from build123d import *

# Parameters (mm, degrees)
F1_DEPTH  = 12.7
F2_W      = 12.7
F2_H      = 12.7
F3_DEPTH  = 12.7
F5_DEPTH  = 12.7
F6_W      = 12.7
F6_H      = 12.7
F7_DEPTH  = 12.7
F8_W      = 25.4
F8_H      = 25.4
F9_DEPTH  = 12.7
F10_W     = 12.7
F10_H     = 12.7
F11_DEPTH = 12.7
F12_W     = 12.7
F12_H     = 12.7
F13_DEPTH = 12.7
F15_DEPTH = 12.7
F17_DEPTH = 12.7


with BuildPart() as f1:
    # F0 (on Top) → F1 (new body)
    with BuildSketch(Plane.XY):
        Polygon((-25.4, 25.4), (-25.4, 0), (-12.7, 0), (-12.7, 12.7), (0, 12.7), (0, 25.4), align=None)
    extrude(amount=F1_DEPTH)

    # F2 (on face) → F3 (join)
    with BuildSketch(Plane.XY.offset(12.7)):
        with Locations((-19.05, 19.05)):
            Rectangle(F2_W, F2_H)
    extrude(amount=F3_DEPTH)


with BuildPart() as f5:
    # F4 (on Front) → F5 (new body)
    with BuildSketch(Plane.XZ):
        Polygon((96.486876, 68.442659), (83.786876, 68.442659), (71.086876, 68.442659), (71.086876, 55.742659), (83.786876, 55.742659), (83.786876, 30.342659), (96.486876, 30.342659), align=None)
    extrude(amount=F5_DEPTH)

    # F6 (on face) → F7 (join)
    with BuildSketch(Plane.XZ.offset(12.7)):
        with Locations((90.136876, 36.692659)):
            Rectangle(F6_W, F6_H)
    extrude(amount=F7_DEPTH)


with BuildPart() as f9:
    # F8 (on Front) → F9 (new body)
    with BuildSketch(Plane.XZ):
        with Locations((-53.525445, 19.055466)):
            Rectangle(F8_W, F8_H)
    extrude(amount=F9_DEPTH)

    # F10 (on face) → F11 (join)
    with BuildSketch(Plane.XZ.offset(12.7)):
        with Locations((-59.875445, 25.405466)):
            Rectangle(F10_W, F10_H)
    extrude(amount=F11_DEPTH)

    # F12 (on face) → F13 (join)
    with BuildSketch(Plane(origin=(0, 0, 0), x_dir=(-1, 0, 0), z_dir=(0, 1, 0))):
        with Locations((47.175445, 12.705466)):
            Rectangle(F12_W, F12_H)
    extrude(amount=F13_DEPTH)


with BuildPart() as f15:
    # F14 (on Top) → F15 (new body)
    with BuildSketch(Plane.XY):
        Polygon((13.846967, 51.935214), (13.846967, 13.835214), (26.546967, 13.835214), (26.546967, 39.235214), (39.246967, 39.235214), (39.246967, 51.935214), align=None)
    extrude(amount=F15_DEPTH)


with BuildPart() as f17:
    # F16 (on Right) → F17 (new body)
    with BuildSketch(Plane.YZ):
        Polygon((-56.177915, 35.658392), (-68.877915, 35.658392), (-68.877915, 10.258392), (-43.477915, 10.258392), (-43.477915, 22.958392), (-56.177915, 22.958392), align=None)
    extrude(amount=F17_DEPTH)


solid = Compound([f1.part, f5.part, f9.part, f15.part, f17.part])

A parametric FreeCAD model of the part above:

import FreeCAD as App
import Part
import Sketcher
from FreeCAD import Vector
Q = App.Units.Quantity

doc = App.newDocument("Part")
body = doc.addObject("PartDesign::Body", "Body")

# Sketch on XY plane
sketch1 = body.newObject("Sketcher::SketchObject", "Sketch")
sketch1.AttachmentSupport = (doc.getObject("XY_Plane"), [""])
sketch1.MapMode = "FlatFace"
sketch1.addGeometry(Part.LineSegment(Vector(-25.4, 25.4, 0), Vector(-25.4, 0, 0)), False)
sketch1.addGeometry(Part.LineSegment(Vector(-25.4, 0, 0), Vector(-12.7, 0, 0)), False)
sketch1.addGeometry(Part.LineSegment(Vector(-12.7, 0, 0), Vector(-12.7, 12.7, 0)), False)
sketch1.addGeometry(Part.LineSegment(Vector(-12.7, 12.7, 0), Vector(0, 12.7, 0)), False)
sketch1.addGeometry(Part.LineSegment(Vector(0, 12.7, 0), Vector(0, 25.4, 0)), False)
sketch1.addGeometry(Part.LineSegment(Vector(0, 25.4, 0), Vector(-25.4, 25.4, 0)), False)
sketch1.addConstraint(Sketcher.Constraint("Coincident", 0, 2, 1, 1))
sketch1.addConstraint(Sketcher.Constraint("Coincident", 1, 2, 2, 1))
sketch1.addConstraint(Sketcher.Constraint("Coincident", 2, 2, 3, 1))
sketch1.addConstraint(Sketcher.Constraint("Coincident", 3, 2, 4, 1))
sketch1.addConstraint(Sketcher.Constraint("Coincident", 4, 2, 5, 1))
sketch1.addConstraint(Sketcher.Constraint("Coincident", 5, 2, 0, 1))
sketch1.addConstraint(Sketcher.Constraint("Vertical", 0))
sketch1.addConstraint(Sketcher.Constraint("Horizontal", 1))
sketch1.addConstraint(Sketcher.Constraint("Vertical", 2))
sketch1.addConstraint(Sketcher.Constraint("Horizontal", 3))
sketch1.addConstraint(Sketcher.Constraint("Vertical", 4))
sketch1.addConstraint(Sketcher.Constraint("Horizontal", 5))
sketch1.addConstraint(Sketcher.Constraint("PointOnObject", 0, 2, -1))
sketch1.addConstraint(Sketcher.Constraint("PointOnObject", 3, 2, -2))
sketch1.addConstraint(Sketcher.Constraint("Equal", 1, 3))
sketch1.addConstraint(Sketcher.Constraint("Equal", 5, 0))
sketch1.addConstraint(Sketcher.Constraint("Equal", 3, 2))
sketch1.addConstraint(Sketcher.Constraint("DistanceX", 5, 2, 5, 1, Q("1 in")))
pad1 = body.newObject("PartDesign::Pad", "Pad")
pad1.Profile = sketch1
pad1.Length = Q("0.5 in")

# Sketch on XY plane
sketch2 = body.newObject("Sketcher::SketchObject", "Sketch001")
sketch2.AttachmentSupport = (doc.getObject("XY_Plane"), [""])
sketch2.MapMode = "FlatFace"
sketch2.AttachmentOffset = App.Placement(Vector(0, 0, 0.5 * 25.4), App.Rotation())
sketch2.addGeometry(Part.LineSegment(Vector(-25.4, 25.4, 0), Vector(-25.4, 12.7, 0)), False)
sketch2.addGeometry(Part.LineSegment(Vector(-25.4, 12.7, 0), Vector(-12.7, 12.7, 0)), False)
sketch2.addGeometry(Part.LineSegment(Vector(-12.7, 12.7, 0), Vector(-12.7, 25.4, 0)), False)
sketch2.addGeometry(Part.LineSegment(Vector(-12.7, 25.4, 0), Vector(-25.4, 25.4, 0)), False)
sketch2.addConstraint(Sketcher.Constraint("Coincident", 0, 2, 1, 1))
sketch2.addConstraint(Sketcher.Constraint("Coincident", 1, 2, 2, 1))
sketch2.addConstraint(Sketcher.Constraint("Coincident", 2, 2, 3, 1))
sketch2.addConstraint(Sketcher.Constraint("Coincident", 3, 2, 0, 1))
sketch2.addConstraint(Sketcher.Constraint("Vertical", 0))
sketch2.addConstraint(Sketcher.Constraint("Horizontal", 1))
sketch2.addConstraint(Sketcher.Constraint("Vertical", 2))
sketch2.addConstraint(Sketcher.Constraint("Horizontal", 3))
sketch2.addConstraint(Sketcher.Constraint("Equal", 3, 0))
sketch2.addConstraint(Sketcher.Constraint("DistanceX", 1, 1, 1, 2, Q("0.5 in")))
sketch2.addConstraint(Sketcher.Constraint("DistanceX", 0, 2, -1, 1, Q("1 in")))
sketch2.addConstraint(Sketcher.Constraint("DistanceY", -1, 1, 2, 2, Q("1 in")))
pad2 = body.newObject("PartDesign::Pad", "Pad001")
pad2.Profile = sketch2
pad2.Length = Q("0.5 in")
body2 = doc.addObject("PartDesign::Body", "Body001")

# Sketch on XZ plane
sketch3 = body2.newObject("Sketcher::SketchObject", "Sketch002")
sketch3.AttachmentSupport = (doc.getObject("XZ_Plane001"), [""])
sketch3.MapMode = "FlatFace"
sketch3.addGeometry(Part.LineSegment(Vector(96.486876, 68.442659, 0), Vector(71.086876, 68.442659, 0)), False)
sketch3.addGeometry(Part.LineSegment(Vector(71.086876, 68.442659, 0), Vector(71.086876, 55.742659, 0)), False)
sketch3.addGeometry(Part.LineSegment(Vector(71.086876, 55.742659, 0), Vector(83.786876, 55.742659, 0)), False)
sketch3.addGeometry(Part.LineSegment(Vector(83.786876, 55.742659, 0), Vector(83.786876, 30.342659, 0)), False)
sketch3.addGeometry(Part.LineSegment(Vector(83.786876, 30.342659, 0), Vector(96.486876, 30.342659, 0)), False)
sketch3.addGeometry(Part.LineSegment(Vector(96.486876, 30.342659, 0), Vector(96.486876, 68.442659, 0)), False)
sketch3.addConstraint(Sketcher.Constraint("Coincident", 0, 2, 1, 1))
sketch3.addConstraint(Sketcher.Constraint("Coincident", 1, 2, 2, 1))
sketch3.addConstraint(Sketcher.Constraint("Coincident", 2, 2, 3, 1))
sketch3.addConstraint(Sketcher.Constraint("Coincident", 3, 2, 4, 1))
sketch3.addConstraint(Sketcher.Constraint("Coincident", 4, 2, 5, 1))
sketch3.addConstraint(Sketcher.Constraint("Coincident", 5, 2, 0, 1))
sketch3.addConstraint(Sketcher.Constraint("Horizontal", 0))
sketch3.addConstraint(Sketcher.Constraint("Vertical", 1))
sketch3.addConstraint(Sketcher.Constraint("Horizontal", 2))
sketch3.addConstraint(Sketcher.Constraint("Vertical", 3))
sketch3.addConstraint(Sketcher.Constraint("Horizontal", 4))
sketch3.addConstraint(Sketcher.Constraint("Vertical", 5))
sketch3.addConstraint(Sketcher.Constraint("Equal", 2, 4))
sketch3.addConstraint(Sketcher.Constraint("Equal", 4, 1))
sketch3.addConstraint(Sketcher.Constraint("Equal", 0, 3))
sketch3.addConstraint(Sketcher.Constraint("DistanceX", 0, 2, 0, 1, Q("1 in")))
sketch3.addConstraint(Sketcher.Constraint("DistanceY", -1, 1, 0, 2, 68.442659))
sketch3.addConstraint(Sketcher.Constraint("DistanceX", -1, 1, 0, 2, 71.086876))
pad3 = body2.newObject("PartDesign::Pad", "Pad002")
pad3.Profile = sketch3
pad3.Length = Q("0.5 in")

# Sketch on XZ plane
sketch4 = body2.newObject("Sketcher::SketchObject", "Sketch003")
sketch4.AttachmentSupport = (doc.getObject("XZ_Plane001"), [""])
sketch4.MapMode = "FlatFace"
sketch4.AttachmentOffset = App.Placement(Vector(0, 0, 0.5 * 25.4), App.Rotation())
sketch4.addGeometry(Part.LineSegment(Vector(83.786876, 43.042659, 0), Vector(83.786876, 30.342659, 0)), False)
sketch4.addGeometry(Part.LineSegment(Vector(83.786876, 30.342659, 0), Vector(96.486876, 30.342659, 0)), False)
sketch4.addGeometry(Part.LineSegment(Vector(96.486876, 30.342659, 0), Vector(96.486876, 43.042659, 0)), False)
sketch4.addGeometry(Part.LineSegment(Vector(96.486876, 43.042659, 0), Vector(83.786876, 43.042659, 0)), False)
sketch4.addConstraint(Sketcher.Constraint("Coincident", 0, 2, 1, 1))
sketch4.addConstraint(Sketcher.Constraint("Coincident", 1, 2, 2, 1))
sketch4.addConstraint(Sketcher.Constraint("Coincident", 2, 2, 3, 1))
sketch4.addConstraint(Sketcher.Constraint("Coincident", 3, 2, 0, 1))
sketch4.addConstraint(Sketcher.Constraint("Vertical", 0))
sketch4.addConstraint(Sketcher.Constraint("Horizontal", 1))
sketch4.addConstraint(Sketcher.Constraint("Vertical", 2))
sketch4.addConstraint(Sketcher.Constraint("Horizontal", 3))
sketch4.addConstraint(Sketcher.Constraint("Equal", 3, 0))
sketch4.addConstraint(Sketcher.Constraint("DistanceX", 1, 1, 1, 2, Q("0.5 in")))
sketch4.addConstraint(Sketcher.Constraint("DistanceY", -1, 1, 0, 2, 30.342659))
sketch4.addConstraint(Sketcher.Constraint("DistanceX", -1, 1, 0, 2, 83.786876))
pad4 = body2.newObject("PartDesign::Pad", "Pad003")
pad4.Profile = sketch4
pad4.Length = Q("0.5 in")
body3 = doc.addObject("PartDesign::Body", "Body002")

# Sketch on XZ plane
sketch5 = body3.newObject("Sketcher::SketchObject", "Sketch004")
sketch5.AttachmentSupport = (doc.getObject("XZ_Plane002"), [""])
sketch5.MapMode = "FlatFace"
sketch5.addGeometry(Part.LineSegment(Vector(-66.225445, 31.755466, 0), Vector(-66.225445, 6.355466, 0)), False)
sketch5.addGeometry(Part.LineSegment(Vector(-66.225445, 6.355466, 0), Vector(-40.825445, 6.355466, 0)), False)
sketch5.addGeometry(Part.LineSegment(Vector(-40.825445, 6.355466, 0), Vector(-40.825445, 31.755466, 0)), False)
sketch5.addGeometry(Part.LineSegment(Vector(-40.825445, 31.755466, 0), Vector(-66.225445, 31.755466, 0)), False)
sketch5.addConstraint(Sketcher.Constraint("Coincident", 0, 2, 1, 1))
sketch5.addConstraint(Sketcher.Constraint("Coincident", 1, 2, 2, 1))
sketch5.addConstraint(Sketcher.Constraint("Coincident", 2, 2, 3, 1))
sketch5.addConstraint(Sketcher.Constraint("Coincident", 3, 2, 0, 1))
sketch5.addConstraint(Sketcher.Constraint("Vertical", 0))
sketch5.addConstraint(Sketcher.Constraint("Horizontal", 1))
sketch5.addConstraint(Sketcher.Constraint("Vertical", 2))
sketch5.addConstraint(Sketcher.Constraint("Horizontal", 3))
sketch5.addConstraint(Sketcher.Constraint("Equal", 3, 0))
sketch5.addConstraint(Sketcher.Constraint("DistanceX", 1, 1, 1, 2, Q("1 in")))
sketch5.addConstraint(Sketcher.Constraint("DistanceX", 0, 2, -1, 1, 66.225445))
sketch5.addConstraint(Sketcher.Constraint("DistanceY", -1, 1, 0, 2, 6.355466))
pad5 = body3.newObject("PartDesign::Pad", "Pad004")
pad5.Profile = sketch5
pad5.Length = Q("0.5 in")

# Sketch on XZ plane
sketch6 = body3.newObject("Sketcher::SketchObject", "Sketch005")
sketch6.AttachmentSupport = (doc.getObject("XZ_Plane002"), [""])
sketch6.MapMode = "FlatFace"
sketch6.AttachmentOffset = App.Placement(Vector(0, 0, 0.5 * 25.4), App.Rotation())
sketch6.addGeometry(Part.LineSegment(Vector(-66.225445, 31.755466, 0), Vector(-66.225445, 19.055466, 0)), False)
sketch6.addGeometry(Part.LineSegment(Vector(-66.225445, 19.055466, 0), Vector(-53.525445, 19.055466, 0)), False)
sketch6.addGeometry(Part.LineSegment(Vector(-53.525445, 19.055466, 0), Vector(-53.525445, 31.755466, 0)), False)
sketch6.addGeometry(Part.LineSegment(Vector(-53.525445, 31.755466, 0), Vector(-66.225445, 31.755466, 0)), False)
sketch6.addConstraint(Sketcher.Constraint("Coincident", 0, 2, 1, 1))
sketch6.addConstraint(Sketcher.Constraint("Coincident", 1, 2, 2, 1))
sketch6.addConstraint(Sketcher.Constraint("Coincident", 2, 2, 3, 1))
sketch6.addConstraint(Sketcher.Constraint("Coincident", 3, 2, 0, 1))
sketch6.addConstraint(Sketcher.Constraint("Vertical", 0))
sketch6.addConstraint(Sketcher.Constraint("Horizontal", 1))
sketch6.addConstraint(Sketcher.Constraint("Vertical", 2))
sketch6.addConstraint(Sketcher.Constraint("Horizontal", 3))
sketch6.addConstraint(Sketcher.Constraint("Equal", 3, 0))
sketch6.addConstraint(Sketcher.Constraint("DistanceX", 1, 1, 1, 2, Q("0.5 in")))
sketch6.addConstraint(Sketcher.Constraint("DistanceX", 0, 2, -1, 1, 66.225445))
sketch6.addConstraint(Sketcher.Constraint("DistanceY", -1, 1, 0, 2, 19.055466))
pad6 = body3.newObject("PartDesign::Pad", "Pad005")
pad6.Profile = sketch6
pad6.Length = Q("0.5 in")

# Sketch on XZ plane
sketch7 = body3.newObject("Sketcher::SketchObject", "Sketch006")
sketch7.AttachmentSupport = (doc.getObject("XZ_Plane002"), [""])
sketch7.MapMode = "FlatFace"
sketch7.addGeometry(Part.LineSegment(Vector(-40.825445, 19.055466, 0), Vector(-40.825445, 6.355466, 0)), False)
sketch7.addGeometry(Part.LineSegment(Vector(-40.825445, 6.355466, 0), Vector(-53.525445, 6.355466, 0)), False)
sketch7.addGeometry(Part.LineSegment(Vector(-53.525445, 6.355466, 0), Vector(-53.525445, 19.055466, 0)), False)
sketch7.addGeometry(Part.LineSegment(Vector(-53.525445, 19.055466, 0), Vector(-40.825445, 19.055466, 0)), False)
sketch7.addConstraint(Sketcher.Constraint("Coincident", 0, 2, 1, 1))
sketch7.addConstraint(Sketcher.Constraint("Coincident", 1, 2, 2, 1))
sketch7.addConstraint(Sketcher.Constraint("Coincident", 2, 2, 3, 1))
sketch7.addConstraint(Sketcher.Constraint("Coincident", 3, 2, 0, 1))
sketch7.addConstraint(Sketcher.Constraint("Vertical", 0))
sketch7.addConstraint(Sketcher.Constraint("Horizontal", 1))
sketch7.addConstraint(Sketcher.Constraint("Vertical", 2))
sketch7.addConstraint(Sketcher.Constraint("Horizontal", 3))
sketch7.addConstraint(Sketcher.Constraint("Equal", 3, 0))
sketch7.addConstraint(Sketcher.Constraint("DistanceX", 1, 2, 1, 1, Q("0.5 in")))
sketch7.addConstraint(Sketcher.Constraint("DistanceX", 0, 2, -1, 1, 40.825445))
sketch7.addConstraint(Sketcher.Constraint("DistanceY", -1, 1, 0, 2, 6.355466))
pad7 = body3.newObject("PartDesign::Pad", "Pad006")
pad7.Profile = sketch7
pad7.Length = Q("0.5 in")
pad7.Reversed = True
body4 = doc.addObject("PartDesign::Body", "Body003")

# Sketch on XY plane
sketch8 = body4.newObject("Sketcher::SketchObject", "Sketch007")
sketch8.AttachmentSupport = (doc.getObject("XY_Plane003"), [""])
sketch8.MapMode = "FlatFace"
sketch8.addGeometry(Part.LineSegment(Vector(13.846967, 51.935214, 0), Vector(13.846967, 13.835214, 0)), False)
sketch8.addGeometry(Part.LineSegment(Vector(13.846967, 13.835214, 0), Vector(26.546967, 13.835214, 0)), False)
sketch8.addGeometry(Part.LineSegment(Vector(26.546967, 13.835214, 0), Vector(26.546967, 39.235214, 0)), False)
sketch8.addGeometry(Part.LineSegment(Vector(26.546967, 39.235214, 0), Vector(39.246967, 39.235214, 0)), False)
sketch8.addGeometry(Part.LineSegment(Vector(39.246967, 39.235214, 0), Vector(39.246967, 51.935214, 0)), False)
sketch8.addGeometry(Part.LineSegment(Vector(39.246967, 51.935214, 0), Vector(13.846967, 51.935214, 0)), False)
sketch8.addConstraint(Sketcher.Constraint("Coincident", 0, 2, 1, 1))
sketch8.addConstraint(Sketcher.Constraint("Coincident", 1, 2, 2, 1))
sketch8.addConstraint(Sketcher.Constraint("Coincident", 2, 2, 3, 1))
sketch8.addConstraint(Sketcher.Constraint("Coincident", 3, 2, 4, 1))
sketch8.addConstraint(Sketcher.Constraint("Coincident", 4, 2, 5, 1))
sketch8.addConstraint(Sketcher.Constraint("Coincident", 5, 2, 0, 1))
sketch8.addConstraint(Sketcher.Constraint("Vertical", 0))
sketch8.addConstraint(Sketcher.Constraint("Horizontal", 1))
sketch8.addConstraint(Sketcher.Constraint("Vertical", 2))
sketch8.addConstraint(Sketcher.Constraint("Horizontal", 3))
sketch8.addConstraint(Sketcher.Constraint("Vertical", 4))
sketch8.addConstraint(Sketcher.Constraint("Horizontal", 5))
sketch8.addConstraint(Sketcher.Constraint("Equal", 1, 3))
sketch8.addConstraint(Sketcher.Constraint("Equal", 5, 2))
sketch8.addConstraint(Sketcher.Constraint("Equal", 3, 4))
sketch8.addConstraint(Sketcher.Constraint("DistanceX", 5, 2, 5, 1, Q("1 in")))
sketch8.addConstraint(Sketcher.Constraint("DistanceX", -1, 1, 0, 2, 13.846967))
sketch8.addConstraint(Sketcher.Constraint("DistanceY", -1, 1, 0, 2, 13.835214))
pad8 = body4.newObject("PartDesign::Pad", "Pad007")
pad8.Profile = sketch8
pad8.Length = Q("0.5 in")
body5 = doc.addObject("PartDesign::Body", "Body004")

# Sketch on YZ plane
sketch9 = body5.newObject("Sketcher::SketchObject", "Sketch008")
sketch9.AttachmentSupport = (doc.getObject("YZ_Plane004"), [""])
sketch9.MapMode = "FlatFace"
sketch9.addGeometry(Part.LineSegment(Vector(-56.177915, 35.658392, 0), Vector(-68.877915, 35.658392, 0)), False)
sketch9.addGeometry(Part.LineSegment(Vector(-68.877915, 35.658392, 0), Vector(-68.877915, 10.258392, 0)), False)
sketch9.addGeometry(Part.LineSegment(Vector(-68.877915, 10.258392, 0), Vector(-43.477915, 10.258392, 0)), False)
sketch9.addGeometry(Part.LineSegment(Vector(-43.477915, 10.258392, 0), Vector(-43.477915, 22.958392, 0)), False)
sketch9.addGeometry(Part.LineSegment(Vector(-43.477915, 22.958392, 0), Vector(-56.177915, 22.958392, 0)), False)
sketch9.addGeometry(Part.LineSegment(Vector(-56.177915, 22.958392, 0), Vector(-56.177915, 35.658392, 0)), False)
sketch9.addConstraint(Sketcher.Constraint("Coincident", 0, 2, 1, 1))
sketch9.addConstraint(Sketcher.Constraint("Coincident", 1, 2, 2, 1))
sketch9.addConstraint(Sketcher.Constraint("Coincident", 2, 2, 3, 1))
sketch9.addConstraint(Sketcher.Constraint("Coincident", 3, 2, 4, 1))
sketch9.addConstraint(Sketcher.Constraint("Coincident", 4, 2, 5, 1))
sketch9.addConstraint(Sketcher.Constraint("Coincident", 5, 2, 0, 1))
sketch9.addConstraint(Sketcher.Constraint("Horizontal", 0))
sketch9.addConstraint(Sketcher.Constraint("Vertical", 1))
sketch9.addConstraint(Sketcher.Constraint("Horizontal", 2))
sketch9.addConstraint(Sketcher.Constraint("Vertical", 3))
sketch9.addConstraint(Sketcher.Constraint("Horizontal", 4))
sketch9.addConstraint(Sketcher.Constraint("Vertical", 5))
sketch9.addConstraint(Sketcher.Constraint("Equal", 0, 4))
sketch9.addConstraint(Sketcher.Constraint("Equal", 2, 1))
sketch9.addConstraint(Sketcher.Constraint("Equal", 4, 3))
sketch9.addConstraint(Sketcher.Constraint("DistanceX", 2, 1, 2, 2, Q("1 in")))
sketch9.addConstraint(Sketcher.Constraint("DistanceY", -1, 1, 3, 2, 22.958392))
sketch9.addConstraint(Sketcher.Constraint("DistanceX", 0, 2, -1, 1, 68.877915))
pad9 = body5.newObject("PartDesign::Pad", "Pad008")
pad9.Profile = sketch9
pad9.Length = Q("0.5 in")

doc.recompute()
